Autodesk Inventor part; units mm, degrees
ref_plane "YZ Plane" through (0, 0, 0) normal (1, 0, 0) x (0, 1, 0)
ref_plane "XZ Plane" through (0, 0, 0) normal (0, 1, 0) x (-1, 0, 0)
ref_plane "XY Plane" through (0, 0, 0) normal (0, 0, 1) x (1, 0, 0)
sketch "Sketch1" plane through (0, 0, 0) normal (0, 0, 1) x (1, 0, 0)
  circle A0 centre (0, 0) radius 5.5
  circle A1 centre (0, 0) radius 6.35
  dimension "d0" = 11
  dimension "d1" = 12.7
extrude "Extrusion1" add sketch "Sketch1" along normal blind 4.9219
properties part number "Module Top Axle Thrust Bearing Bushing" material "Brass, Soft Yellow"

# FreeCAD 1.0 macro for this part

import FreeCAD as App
import Part
import Sketcher
from FreeCAD import Vector
Q = App.Units.Quantity

doc = App.newDocument("Part")
params = doc.addObject("Spreadsheet::Sheet", "Params")
for row, (alias, value) in enumerate([
    ("sketch1_diameter", "11 mm"),
    ("sketch1_diameter2", "12.7 mm"),
    ("pad1_length", "4.9219 mm"),
], start=1):
    params.set(f"A{row}", alias)
    params.set(f"B{row}", "=" + value)
    params.setAlias(f"B{row}", alias)

body = doc.addObject("PartDesign::Body", "Body")

# Sketch on XY plane
sketch1 = doc.addObject("Sketcher::SketchObject", "Sketch")
body.addObject(sketch1)
sketch1.AttachmentSupport = (doc.XY_Plane, [""])
sketch1.MapMode = "FlatFace"
sketch1.addGeometry([
    Part.Circle(Vector(0, 0, 0), Vector(0, 0, 1), 6),
    Part.Circle(Vector(0, 0, 0), Vector(0, 0, 1), 6),
], False)
sketch1.addConstraint([
    Sketcher.Constraint("Coincident", 0, 3, -1, 1),
    Sketcher.Constraint("Coincident", 1, 3, -1, 1),
    Sketcher.Constraint("Diameter", 1, Q("11 mm")),
    Sketcher.Constraint("Diameter", 0, Q("12.7 mm")),
])
sketch1.setExpression("Constraints[2]", "Params.sketch1_diameter")
sketch1.setExpression("Constraints[3]", "Params.sketch1_diameter2")
pad1 = doc.addObject("PartDesign::Pad", "Pad")
body.addObject(pad1)
pad1.Profile = sketch1
pad1.setExpression("Length", "Params.pad1_length")

doc.recompute()
